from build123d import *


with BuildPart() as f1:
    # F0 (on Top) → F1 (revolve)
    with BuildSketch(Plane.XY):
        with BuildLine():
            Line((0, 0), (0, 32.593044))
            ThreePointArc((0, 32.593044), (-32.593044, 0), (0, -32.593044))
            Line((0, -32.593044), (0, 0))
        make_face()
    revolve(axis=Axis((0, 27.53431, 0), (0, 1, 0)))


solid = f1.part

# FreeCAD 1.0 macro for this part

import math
import FreeCAD as App
import Part
import Sketcher

doc = App.newDocument("Part")
params = doc.addObject("Spreadsheet::Sheet", "Params")
for row, (alias, value) in enumerate([
    ("revolution_angle", "360 deg"),
], start=1):
    params.set(f"A{row}", alias)
    params.set(f"B{row}", "=" + value)
    params.setAlias(f"B{row}", alias)

body = doc.addObject("PartDesign::Body", "Body")

# Sketch on XY plane
sketch1 = body.newObject("Sketcher::SketchObject", "Sketch")
sketch1.AttachmentSupport = (doc.getObject("XY_Plane"), [""])
sketch1.MapMode = "FlatFace"
sketch1.addGeometry(Part.ArcOfCircle(Part.Circle(App.Vector(0, 0, 0), App.Vector(0, 0, 1), 33), math.radians(90), math.radians(270)), False)
sketch1.addGeometry(Part.LineSegment(App.Vector(0, -33, 0), App.Vector(0, 33, 0)), False)
sketch1.addConstraint(Sketcher.Constraint("Coincident", 0, 1, 1, 2))
sketch1.addConstraint(Sketcher.Constraint("Coincident", 1, 1, 0, 2))
sketch1.addConstraint(Sketcher.Constraint("Vertical", 1))
sketch1.addConstraint(Sketcher.Constraint("Coincident", 0, 3, -1, 1))
sketch1.addConstraint(Sketcher.Constraint("PointOnObject", 0, 1, -2))
sketch1.addConstraint(Sketcher.Constraint("Radius", 0, 32.593044))
revolution = body.newObject("PartDesign::Revolution", "Revolution")
revolution.Profile = sketch1
revolution.ReferenceAxis = (sketch1, ["V_Axis"])
revolution.setExpression("Angle", "Params.revolution_angle")

doc.recompute()
